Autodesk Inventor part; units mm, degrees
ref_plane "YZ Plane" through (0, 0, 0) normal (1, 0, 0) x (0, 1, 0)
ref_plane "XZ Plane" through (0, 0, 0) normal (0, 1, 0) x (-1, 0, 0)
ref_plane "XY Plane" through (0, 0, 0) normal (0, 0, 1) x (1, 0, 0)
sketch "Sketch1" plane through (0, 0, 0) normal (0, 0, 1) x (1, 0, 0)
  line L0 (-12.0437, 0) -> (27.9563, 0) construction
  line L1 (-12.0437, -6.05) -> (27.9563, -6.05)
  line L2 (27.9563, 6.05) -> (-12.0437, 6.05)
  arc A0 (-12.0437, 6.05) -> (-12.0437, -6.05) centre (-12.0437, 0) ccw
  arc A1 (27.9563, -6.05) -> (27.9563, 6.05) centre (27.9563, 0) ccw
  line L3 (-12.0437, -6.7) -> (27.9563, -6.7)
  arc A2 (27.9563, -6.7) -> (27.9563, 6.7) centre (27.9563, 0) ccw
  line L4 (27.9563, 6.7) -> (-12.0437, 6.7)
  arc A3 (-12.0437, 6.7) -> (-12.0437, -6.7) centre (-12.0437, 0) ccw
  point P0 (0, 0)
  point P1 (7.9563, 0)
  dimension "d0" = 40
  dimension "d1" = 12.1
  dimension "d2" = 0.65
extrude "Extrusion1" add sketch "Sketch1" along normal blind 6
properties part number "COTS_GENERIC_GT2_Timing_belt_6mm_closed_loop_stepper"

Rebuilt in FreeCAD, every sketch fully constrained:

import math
import FreeCAD as App
import Part
import Sketcher
Q = App.Units.Quantity

doc = App.newDocument("Part")
body = doc.addObject("PartDesign::Body", "Body")

sketch1 = body.newObject("Sketcher::SketchObject", "Sketch")
sketch1.AttachmentSupport = (doc.getObject("XY_Plane"), [""])
sketch1.MapMode = "FlatFace"
sketch1.addGeometry([
    Part.ArcOfCircle(Part.Circle(App.Vector(-12, 0, 0), App.Vector(0, 0, 1), 7), math.radians(90), math.radians(270)),
    Part.LineSegment(App.Vector(-12, -7, 0), App.Vector(28, -7, 0)),
    Part.ArcOfCircle(Part.Circle(App.Vector(28, 0, 0), App.Vector(0, 0, 1), 7), math.radians(-90), math.radians(90)),
    Part.LineSegment(App.Vector(28, 7, 0), App.Vector(-12, 7, 0)),
    Part.LineSegment(App.Vector(28, -6, 0), App.Vector(-12, -6, 0)),
    Part.ArcOfCircle(Part.Circle(App.Vector(-12, 0, 0), App.Vector(0, 0, 1), 6), math.radians(90), math.radians(270)),
    Part.LineSegment(App.Vector(-12, 6, 0), App.Vector(28, 6, 0)),
    Part.ArcOfCircle(Part.Circle(App.Vector(28, 0, 0), App.Vector(0, 0, 1), 6), math.radians(-90), math.radians(90)),
], False)
sketch1.addConstraint([
    Sketcher.Constraint("Tangent", 0, 2, 1, 1),
    Sketcher.Constraint("Tangent", 1, 2, 2, 1),
    Sketcher.Constraint("Tangent", 2, 2, 3, 1),
    Sketcher.Constraint("Tangent", 3, 2, 0, 1),
    Sketcher.Constraint("Tangent", 4, 2, 5, 2),
    Sketcher.Constraint("Tangent", 5, 1, 6, 1),
    Sketcher.Constraint("Tangent", 6, 2, 7, 2),
    Sketcher.Constraint("Tangent", 7, 1, 4, 1),
    Sketcher.Constraint("Horizontal", 1),
    Sketcher.Constraint("Horizontal", 3),
    Sketcher.Constraint("Horizontal", 4),
    Sketcher.Constraint("Horizontal", 6),
    Sketcher.Constraint("Coincident", 5, 3, 0, 3),
    Sketcher.Constraint("PointOnObject", 0, 3, -1),
    Sketcher.Constraint("Vertical", 7, 3, 1, 2),
    Sketcher.Constraint("DistanceX", 1, 1, 1, 2, Q("40 mm")),
    Sketcher.Constraint("Radius", 5, Q("6.05 mm")),
    Sketcher.Constraint("Radius", 0, Q("6.7 mm")),
    Sketcher.Constraint("DistanceX", 0, 3, -1, 1, Q("12.0437 mm")),
])
pad1 = body.newObject("PartDesign::Pad", "Pad")
pad1.Profile = sketch1
pad1.Length = 6

doc.recompute()
